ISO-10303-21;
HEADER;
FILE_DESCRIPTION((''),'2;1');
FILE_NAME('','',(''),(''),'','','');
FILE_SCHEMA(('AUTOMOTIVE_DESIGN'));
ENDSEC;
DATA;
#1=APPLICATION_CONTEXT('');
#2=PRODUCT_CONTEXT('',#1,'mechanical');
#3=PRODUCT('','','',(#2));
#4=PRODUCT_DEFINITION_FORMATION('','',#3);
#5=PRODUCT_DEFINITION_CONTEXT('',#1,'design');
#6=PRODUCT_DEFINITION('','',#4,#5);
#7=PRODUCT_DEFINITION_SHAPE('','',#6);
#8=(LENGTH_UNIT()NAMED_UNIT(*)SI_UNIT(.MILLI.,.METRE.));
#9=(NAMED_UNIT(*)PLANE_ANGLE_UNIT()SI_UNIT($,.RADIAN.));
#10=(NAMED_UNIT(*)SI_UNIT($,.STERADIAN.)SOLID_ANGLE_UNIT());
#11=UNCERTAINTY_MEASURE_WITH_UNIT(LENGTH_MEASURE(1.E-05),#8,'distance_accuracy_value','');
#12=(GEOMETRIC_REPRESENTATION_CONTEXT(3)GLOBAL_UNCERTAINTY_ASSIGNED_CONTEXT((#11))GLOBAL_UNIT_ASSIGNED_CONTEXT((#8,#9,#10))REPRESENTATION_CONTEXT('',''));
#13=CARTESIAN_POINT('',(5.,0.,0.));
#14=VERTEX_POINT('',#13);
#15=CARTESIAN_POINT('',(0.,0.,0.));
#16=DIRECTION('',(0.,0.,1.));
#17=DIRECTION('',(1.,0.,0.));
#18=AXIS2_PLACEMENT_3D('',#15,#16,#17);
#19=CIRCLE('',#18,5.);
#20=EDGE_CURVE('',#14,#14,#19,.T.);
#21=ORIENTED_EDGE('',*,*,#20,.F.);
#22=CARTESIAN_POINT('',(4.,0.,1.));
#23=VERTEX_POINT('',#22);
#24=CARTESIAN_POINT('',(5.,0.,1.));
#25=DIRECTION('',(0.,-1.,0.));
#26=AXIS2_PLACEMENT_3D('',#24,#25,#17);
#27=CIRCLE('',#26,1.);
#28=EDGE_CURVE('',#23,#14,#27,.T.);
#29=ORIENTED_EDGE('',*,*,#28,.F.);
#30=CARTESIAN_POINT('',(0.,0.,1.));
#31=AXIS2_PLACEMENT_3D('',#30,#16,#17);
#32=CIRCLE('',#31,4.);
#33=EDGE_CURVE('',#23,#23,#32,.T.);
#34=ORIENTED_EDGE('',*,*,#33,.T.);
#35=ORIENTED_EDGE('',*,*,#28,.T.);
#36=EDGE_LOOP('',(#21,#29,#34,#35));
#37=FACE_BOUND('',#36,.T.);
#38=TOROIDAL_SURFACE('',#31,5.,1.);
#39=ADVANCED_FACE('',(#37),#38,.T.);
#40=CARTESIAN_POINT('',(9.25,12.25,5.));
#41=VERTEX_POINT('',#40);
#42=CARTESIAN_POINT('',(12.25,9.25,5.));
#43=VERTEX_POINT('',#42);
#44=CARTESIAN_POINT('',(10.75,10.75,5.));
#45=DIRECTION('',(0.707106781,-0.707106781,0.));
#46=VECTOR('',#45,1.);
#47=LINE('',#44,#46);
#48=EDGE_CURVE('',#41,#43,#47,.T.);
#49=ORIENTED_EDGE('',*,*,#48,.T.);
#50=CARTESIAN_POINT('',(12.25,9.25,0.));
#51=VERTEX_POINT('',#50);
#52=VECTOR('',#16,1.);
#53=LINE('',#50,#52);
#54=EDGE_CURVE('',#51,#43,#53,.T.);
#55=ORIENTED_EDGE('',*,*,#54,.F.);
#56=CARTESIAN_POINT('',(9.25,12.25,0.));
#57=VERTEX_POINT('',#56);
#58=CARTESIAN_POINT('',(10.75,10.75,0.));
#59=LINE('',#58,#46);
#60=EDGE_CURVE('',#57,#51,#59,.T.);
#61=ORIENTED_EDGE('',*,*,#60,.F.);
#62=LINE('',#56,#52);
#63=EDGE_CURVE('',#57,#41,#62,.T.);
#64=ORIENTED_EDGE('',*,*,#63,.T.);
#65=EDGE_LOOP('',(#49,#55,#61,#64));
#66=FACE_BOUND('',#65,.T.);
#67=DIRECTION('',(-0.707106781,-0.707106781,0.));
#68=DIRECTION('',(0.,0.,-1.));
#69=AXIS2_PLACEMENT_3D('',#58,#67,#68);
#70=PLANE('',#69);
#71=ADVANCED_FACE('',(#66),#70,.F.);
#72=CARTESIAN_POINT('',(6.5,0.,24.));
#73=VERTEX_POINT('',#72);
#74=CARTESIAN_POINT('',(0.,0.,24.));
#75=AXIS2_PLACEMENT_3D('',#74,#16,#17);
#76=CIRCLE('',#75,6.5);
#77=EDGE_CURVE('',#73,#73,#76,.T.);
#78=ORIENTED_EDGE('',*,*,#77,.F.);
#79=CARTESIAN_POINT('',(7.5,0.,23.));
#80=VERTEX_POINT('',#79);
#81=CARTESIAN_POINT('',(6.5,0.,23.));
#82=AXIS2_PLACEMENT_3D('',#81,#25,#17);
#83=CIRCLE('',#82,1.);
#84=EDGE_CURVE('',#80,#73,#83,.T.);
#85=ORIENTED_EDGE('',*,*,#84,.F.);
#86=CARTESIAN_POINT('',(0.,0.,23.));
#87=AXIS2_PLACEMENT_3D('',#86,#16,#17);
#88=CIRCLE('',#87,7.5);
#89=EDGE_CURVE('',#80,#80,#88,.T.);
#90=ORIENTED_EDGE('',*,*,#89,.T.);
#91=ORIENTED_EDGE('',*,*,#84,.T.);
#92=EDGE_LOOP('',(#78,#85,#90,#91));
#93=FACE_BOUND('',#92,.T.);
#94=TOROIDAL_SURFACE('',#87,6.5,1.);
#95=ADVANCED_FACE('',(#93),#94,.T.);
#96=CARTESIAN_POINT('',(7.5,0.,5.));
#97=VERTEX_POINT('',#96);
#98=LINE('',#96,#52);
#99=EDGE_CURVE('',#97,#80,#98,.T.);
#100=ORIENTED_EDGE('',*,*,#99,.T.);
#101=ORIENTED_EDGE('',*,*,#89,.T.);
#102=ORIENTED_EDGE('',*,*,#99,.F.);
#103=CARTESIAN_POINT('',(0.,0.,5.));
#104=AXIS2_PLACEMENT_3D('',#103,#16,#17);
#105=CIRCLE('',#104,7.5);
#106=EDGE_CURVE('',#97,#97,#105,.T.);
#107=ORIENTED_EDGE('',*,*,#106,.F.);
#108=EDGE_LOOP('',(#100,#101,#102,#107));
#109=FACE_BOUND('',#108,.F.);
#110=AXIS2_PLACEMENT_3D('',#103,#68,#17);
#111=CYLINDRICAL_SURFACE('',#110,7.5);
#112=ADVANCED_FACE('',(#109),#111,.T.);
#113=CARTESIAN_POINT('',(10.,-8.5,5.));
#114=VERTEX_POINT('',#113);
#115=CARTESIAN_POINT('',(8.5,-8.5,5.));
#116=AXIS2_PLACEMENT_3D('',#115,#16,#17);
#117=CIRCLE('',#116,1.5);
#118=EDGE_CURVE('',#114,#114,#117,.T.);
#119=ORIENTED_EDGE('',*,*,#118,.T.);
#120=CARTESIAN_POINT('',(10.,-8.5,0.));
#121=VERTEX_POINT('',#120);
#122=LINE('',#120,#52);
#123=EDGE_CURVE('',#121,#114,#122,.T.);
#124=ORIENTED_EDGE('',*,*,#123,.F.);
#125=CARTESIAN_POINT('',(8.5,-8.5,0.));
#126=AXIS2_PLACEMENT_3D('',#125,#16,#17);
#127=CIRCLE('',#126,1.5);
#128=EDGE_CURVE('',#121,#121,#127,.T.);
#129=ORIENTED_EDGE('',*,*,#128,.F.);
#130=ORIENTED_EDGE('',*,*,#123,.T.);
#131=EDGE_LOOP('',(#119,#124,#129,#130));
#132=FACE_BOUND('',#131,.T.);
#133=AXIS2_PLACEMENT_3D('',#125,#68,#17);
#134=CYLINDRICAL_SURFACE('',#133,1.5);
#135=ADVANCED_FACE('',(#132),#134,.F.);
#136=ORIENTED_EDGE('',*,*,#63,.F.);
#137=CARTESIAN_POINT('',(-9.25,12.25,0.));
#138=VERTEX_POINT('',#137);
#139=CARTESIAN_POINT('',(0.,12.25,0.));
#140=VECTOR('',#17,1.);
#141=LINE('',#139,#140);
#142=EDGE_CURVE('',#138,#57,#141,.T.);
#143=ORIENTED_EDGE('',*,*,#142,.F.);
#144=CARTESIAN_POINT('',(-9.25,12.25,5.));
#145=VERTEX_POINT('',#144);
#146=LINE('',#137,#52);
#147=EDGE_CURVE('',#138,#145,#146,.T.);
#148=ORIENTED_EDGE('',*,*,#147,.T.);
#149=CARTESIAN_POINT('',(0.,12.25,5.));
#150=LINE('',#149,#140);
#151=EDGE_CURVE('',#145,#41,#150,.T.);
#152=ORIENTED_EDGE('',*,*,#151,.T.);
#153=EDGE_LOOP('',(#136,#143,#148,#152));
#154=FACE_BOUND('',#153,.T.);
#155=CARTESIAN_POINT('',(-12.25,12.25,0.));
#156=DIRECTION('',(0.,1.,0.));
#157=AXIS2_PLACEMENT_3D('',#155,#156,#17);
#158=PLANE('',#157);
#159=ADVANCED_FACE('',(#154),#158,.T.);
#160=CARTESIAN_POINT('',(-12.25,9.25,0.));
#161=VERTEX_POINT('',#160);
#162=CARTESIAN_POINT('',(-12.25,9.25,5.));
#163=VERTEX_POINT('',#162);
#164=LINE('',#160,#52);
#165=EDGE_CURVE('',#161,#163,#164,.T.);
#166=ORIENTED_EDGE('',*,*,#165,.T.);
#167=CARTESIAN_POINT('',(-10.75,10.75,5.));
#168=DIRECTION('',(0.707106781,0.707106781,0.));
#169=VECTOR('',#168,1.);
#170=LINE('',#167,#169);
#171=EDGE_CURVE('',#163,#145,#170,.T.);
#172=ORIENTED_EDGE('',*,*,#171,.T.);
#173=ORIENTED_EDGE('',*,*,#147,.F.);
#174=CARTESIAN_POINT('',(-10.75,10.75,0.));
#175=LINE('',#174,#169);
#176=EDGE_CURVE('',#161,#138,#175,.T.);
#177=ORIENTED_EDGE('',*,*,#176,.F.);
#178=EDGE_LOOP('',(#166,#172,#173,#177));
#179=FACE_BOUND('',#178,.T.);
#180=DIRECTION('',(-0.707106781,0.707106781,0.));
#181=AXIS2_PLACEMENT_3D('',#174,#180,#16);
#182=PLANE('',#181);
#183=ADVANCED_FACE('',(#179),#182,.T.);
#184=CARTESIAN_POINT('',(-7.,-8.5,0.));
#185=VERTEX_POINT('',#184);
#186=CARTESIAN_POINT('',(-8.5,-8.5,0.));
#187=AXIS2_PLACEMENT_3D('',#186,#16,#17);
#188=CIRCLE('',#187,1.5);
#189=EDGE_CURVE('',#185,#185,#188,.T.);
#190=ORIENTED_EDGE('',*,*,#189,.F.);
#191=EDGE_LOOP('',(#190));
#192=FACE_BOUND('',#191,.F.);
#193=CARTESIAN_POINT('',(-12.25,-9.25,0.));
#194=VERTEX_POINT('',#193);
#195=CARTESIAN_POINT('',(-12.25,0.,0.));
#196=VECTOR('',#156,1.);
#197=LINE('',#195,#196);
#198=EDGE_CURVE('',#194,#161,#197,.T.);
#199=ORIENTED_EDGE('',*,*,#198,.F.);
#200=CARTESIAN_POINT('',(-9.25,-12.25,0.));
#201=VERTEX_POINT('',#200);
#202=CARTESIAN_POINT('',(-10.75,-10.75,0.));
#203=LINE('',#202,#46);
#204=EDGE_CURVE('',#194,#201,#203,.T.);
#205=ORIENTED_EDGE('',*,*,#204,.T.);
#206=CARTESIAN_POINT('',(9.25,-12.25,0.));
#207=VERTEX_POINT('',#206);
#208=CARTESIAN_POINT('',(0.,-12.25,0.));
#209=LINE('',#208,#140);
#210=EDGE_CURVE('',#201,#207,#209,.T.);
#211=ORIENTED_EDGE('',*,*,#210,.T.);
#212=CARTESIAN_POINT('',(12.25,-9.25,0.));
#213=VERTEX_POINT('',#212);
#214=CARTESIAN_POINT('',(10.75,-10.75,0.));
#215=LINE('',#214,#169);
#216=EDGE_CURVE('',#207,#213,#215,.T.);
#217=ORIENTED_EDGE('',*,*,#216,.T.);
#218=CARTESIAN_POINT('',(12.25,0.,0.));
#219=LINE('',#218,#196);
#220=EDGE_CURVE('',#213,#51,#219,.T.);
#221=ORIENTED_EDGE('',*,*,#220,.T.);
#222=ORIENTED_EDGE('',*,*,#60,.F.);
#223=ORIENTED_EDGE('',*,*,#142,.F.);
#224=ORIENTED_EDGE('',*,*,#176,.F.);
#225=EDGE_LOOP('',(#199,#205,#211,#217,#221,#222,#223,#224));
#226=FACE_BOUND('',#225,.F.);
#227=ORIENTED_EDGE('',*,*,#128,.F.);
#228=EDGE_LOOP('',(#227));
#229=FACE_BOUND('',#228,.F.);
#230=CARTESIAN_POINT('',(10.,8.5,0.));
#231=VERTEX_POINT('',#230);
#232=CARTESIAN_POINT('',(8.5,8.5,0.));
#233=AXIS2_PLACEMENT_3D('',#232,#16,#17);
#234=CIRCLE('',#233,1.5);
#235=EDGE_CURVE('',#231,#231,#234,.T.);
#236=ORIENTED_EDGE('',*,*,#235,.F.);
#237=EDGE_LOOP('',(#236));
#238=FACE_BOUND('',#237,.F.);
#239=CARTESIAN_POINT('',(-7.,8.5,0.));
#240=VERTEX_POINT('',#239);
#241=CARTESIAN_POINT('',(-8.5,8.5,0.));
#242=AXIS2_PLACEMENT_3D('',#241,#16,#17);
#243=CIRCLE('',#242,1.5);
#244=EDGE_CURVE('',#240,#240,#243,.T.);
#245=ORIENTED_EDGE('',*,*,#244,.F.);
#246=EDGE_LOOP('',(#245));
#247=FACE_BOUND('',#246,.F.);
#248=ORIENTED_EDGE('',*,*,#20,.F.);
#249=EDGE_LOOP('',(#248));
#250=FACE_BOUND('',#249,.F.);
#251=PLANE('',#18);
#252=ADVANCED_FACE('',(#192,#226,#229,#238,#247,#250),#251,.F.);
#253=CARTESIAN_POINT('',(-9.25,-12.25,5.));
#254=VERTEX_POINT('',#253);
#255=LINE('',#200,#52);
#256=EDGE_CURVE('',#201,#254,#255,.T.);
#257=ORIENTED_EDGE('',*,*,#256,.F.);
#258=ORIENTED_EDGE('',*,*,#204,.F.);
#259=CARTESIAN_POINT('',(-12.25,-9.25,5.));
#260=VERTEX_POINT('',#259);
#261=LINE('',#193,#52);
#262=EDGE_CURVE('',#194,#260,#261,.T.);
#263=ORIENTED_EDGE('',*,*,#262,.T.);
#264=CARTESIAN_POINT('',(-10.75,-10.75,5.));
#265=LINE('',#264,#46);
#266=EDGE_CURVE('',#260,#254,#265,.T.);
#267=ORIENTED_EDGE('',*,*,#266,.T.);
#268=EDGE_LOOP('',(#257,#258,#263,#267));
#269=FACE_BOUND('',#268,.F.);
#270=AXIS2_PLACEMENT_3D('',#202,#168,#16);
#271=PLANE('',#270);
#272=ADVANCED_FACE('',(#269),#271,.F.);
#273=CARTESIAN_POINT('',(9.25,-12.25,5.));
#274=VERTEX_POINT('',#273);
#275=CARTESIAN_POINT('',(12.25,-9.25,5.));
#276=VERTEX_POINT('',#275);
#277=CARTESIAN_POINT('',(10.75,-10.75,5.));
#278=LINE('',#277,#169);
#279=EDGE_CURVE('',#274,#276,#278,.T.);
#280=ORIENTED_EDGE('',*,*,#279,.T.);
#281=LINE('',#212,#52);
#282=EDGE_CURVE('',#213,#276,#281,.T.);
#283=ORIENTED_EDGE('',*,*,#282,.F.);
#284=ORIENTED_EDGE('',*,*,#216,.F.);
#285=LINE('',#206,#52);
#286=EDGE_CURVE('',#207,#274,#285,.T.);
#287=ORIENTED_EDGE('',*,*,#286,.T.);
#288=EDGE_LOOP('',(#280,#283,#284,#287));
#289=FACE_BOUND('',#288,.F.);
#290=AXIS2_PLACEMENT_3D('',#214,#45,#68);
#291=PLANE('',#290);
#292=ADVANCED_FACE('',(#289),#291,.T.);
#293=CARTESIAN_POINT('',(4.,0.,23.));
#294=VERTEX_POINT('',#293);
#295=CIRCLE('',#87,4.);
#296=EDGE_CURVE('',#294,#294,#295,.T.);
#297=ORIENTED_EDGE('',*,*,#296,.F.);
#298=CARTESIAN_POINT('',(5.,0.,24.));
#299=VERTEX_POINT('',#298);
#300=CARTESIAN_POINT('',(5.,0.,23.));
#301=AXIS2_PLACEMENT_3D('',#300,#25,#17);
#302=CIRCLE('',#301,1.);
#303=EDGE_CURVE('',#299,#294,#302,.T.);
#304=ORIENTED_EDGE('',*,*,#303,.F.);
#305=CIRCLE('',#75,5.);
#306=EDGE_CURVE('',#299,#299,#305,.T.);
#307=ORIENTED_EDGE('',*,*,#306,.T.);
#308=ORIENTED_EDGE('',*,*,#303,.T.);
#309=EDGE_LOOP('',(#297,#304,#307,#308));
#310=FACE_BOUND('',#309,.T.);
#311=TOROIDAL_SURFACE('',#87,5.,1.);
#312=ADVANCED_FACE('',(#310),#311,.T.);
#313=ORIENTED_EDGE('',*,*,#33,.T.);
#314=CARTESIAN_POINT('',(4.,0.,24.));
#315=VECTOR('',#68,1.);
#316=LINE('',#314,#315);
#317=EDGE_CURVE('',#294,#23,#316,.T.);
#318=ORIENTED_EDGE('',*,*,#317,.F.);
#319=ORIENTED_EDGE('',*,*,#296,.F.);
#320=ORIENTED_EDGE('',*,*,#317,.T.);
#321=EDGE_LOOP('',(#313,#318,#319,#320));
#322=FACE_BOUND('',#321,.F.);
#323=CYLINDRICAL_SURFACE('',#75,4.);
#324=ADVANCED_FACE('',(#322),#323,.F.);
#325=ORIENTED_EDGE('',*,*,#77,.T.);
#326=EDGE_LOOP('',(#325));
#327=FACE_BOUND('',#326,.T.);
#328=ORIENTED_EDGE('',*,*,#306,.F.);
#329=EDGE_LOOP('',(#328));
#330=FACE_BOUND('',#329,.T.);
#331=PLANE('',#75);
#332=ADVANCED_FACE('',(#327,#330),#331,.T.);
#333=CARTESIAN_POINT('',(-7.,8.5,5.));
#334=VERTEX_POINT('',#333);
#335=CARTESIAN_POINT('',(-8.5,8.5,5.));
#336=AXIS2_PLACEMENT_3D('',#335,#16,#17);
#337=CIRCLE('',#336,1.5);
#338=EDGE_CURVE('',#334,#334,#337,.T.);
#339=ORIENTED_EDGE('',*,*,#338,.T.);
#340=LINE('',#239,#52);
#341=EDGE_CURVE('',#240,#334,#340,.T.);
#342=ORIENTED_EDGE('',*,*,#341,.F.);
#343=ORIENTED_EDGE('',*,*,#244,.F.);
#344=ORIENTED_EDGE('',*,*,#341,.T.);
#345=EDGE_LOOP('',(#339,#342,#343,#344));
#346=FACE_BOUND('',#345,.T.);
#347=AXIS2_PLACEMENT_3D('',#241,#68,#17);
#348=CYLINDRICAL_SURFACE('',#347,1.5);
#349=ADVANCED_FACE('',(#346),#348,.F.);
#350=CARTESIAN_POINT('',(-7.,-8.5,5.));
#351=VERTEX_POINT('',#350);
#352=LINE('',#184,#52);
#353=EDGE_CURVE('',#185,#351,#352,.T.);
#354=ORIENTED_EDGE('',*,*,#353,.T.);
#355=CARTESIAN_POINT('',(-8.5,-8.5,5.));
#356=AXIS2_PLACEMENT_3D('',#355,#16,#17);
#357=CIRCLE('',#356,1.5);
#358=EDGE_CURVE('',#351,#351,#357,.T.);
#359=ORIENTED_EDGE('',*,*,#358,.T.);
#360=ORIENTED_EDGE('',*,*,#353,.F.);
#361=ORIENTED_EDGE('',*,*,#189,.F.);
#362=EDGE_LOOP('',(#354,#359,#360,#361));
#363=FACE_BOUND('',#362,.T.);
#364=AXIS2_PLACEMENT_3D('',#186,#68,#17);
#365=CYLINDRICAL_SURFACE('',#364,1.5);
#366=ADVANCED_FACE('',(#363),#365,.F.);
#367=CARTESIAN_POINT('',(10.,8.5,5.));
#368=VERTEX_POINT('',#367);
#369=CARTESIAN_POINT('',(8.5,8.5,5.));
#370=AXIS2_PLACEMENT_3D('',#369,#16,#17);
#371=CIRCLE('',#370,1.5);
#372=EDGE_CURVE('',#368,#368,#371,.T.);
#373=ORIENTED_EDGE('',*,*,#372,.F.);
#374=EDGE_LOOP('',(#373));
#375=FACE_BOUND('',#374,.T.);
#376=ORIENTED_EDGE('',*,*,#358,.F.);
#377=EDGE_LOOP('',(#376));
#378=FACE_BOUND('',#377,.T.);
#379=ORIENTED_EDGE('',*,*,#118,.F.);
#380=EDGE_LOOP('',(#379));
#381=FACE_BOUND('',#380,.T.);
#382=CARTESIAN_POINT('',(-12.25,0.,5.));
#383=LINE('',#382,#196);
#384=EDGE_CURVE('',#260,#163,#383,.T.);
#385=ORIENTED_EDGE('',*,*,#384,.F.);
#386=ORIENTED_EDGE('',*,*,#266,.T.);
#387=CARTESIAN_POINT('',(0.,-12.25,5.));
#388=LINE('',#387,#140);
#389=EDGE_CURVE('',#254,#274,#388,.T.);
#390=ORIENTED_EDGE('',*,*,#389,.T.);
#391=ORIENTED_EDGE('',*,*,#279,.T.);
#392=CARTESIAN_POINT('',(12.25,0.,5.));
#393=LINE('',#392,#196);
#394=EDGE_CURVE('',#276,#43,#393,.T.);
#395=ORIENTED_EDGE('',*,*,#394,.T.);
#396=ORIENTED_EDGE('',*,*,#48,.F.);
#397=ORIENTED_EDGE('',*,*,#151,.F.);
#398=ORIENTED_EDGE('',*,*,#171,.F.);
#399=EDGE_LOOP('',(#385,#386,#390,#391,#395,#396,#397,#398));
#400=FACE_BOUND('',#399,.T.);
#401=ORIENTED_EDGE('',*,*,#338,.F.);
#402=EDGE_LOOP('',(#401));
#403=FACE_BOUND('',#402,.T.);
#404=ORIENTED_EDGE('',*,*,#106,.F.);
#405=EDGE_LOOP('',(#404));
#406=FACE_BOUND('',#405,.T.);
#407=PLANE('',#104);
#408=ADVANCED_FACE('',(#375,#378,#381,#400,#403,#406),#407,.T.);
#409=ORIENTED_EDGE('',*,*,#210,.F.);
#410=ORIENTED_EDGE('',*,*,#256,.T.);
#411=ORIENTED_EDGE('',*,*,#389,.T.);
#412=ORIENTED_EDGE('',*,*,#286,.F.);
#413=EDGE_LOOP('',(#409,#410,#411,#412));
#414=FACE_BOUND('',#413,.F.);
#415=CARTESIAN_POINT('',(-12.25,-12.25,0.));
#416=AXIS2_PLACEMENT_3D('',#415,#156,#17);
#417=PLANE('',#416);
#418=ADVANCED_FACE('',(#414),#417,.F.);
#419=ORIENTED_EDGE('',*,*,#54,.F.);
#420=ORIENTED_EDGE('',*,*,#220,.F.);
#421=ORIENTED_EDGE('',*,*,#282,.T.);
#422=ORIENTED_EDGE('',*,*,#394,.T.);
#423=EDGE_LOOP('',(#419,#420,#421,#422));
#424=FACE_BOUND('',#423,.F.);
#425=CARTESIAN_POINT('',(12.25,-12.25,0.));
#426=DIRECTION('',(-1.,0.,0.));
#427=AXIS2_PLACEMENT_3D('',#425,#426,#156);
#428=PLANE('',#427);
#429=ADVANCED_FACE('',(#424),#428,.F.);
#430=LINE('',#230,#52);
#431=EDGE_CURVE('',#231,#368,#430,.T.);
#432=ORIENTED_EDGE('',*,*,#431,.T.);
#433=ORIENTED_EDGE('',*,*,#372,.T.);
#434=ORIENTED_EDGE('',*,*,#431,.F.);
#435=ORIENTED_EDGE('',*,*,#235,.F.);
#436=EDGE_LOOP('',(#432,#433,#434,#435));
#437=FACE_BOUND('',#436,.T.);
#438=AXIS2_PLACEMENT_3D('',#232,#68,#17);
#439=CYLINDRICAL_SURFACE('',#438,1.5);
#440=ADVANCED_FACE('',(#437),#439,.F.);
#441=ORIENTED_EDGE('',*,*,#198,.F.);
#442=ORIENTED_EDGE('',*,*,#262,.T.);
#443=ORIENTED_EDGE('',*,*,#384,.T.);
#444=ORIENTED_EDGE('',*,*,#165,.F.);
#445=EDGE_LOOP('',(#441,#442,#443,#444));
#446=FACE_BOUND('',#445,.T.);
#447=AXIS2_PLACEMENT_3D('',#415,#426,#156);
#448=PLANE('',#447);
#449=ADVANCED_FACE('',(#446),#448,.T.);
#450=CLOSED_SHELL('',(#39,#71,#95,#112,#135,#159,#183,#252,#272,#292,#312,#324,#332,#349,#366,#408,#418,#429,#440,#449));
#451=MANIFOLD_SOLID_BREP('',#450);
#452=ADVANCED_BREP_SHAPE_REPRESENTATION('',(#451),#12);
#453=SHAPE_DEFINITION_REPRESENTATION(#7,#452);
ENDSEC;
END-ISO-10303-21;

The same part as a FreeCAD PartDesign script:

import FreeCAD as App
import Part
import Sketcher
from FreeCAD import Vector


def edges_at(feature, points):
    """Names of the edges that pass closest to the given points."""
    edges = feature.Shape.Edges
    near = lambda p: min(range(len(edges)), key=lambda i: edges[i].distToShape(Part.Vertex(*p))[0])
    return sorted({f"Edge{near(p) + 1}" for p in points})


def add_polygon(sketch, points):
    """Adds a closed chain of lines whose ends are joined by coincident constraints."""
    first, n = sketch.GeometryCount, len(points)
    for a, b in zip(points, points[1:] + points[:1]):
        sketch.addGeometry(Part.LineSegment(App.Vector(*a, 0), App.Vector(*b, 0)), False)
    for i in range(n):
        sketch.addConstraint(Sketcher.Constraint("Coincident", first + i, 2, first + (i + 1) % n, 1))

doc = App.newDocument("Part")
body = doc.addObject("PartDesign::Body", "Body")

# Sketch on XY plane
sketch1 = body.newObject("Sketcher::SketchObject", "Sketch")
sketch1.AttachmentSupport = (doc.getObject("XY_Plane"), [""])
sketch1.MapMode = "FlatFace"
add_polygon(sketch1, [(-12.2, 12.2), (-12.2, -12.2), (12.2, -12.2), (12.2, 12.2)])  # lines 0-3
sketch1.addGeometry(Part.Circle(Vector(-8.5, -8.5, 0), Vector(0, 0, 1), 1.5), False)  # 4
sketch1.addGeometry(Part.Circle(Vector(8.5, -8.5, 0), Vector(0, 0, 1), 1.5), False)  # 5
sketch1.addGeometry(Part.Circle(Vector(-8.5, 8.5, 0), Vector(0, 0, 1), 1.5), False)  # 6
sketch1.addGeometry(Part.Circle(Vector(8.5, 8.5, 0), Vector(0, 0, 1), 1.5), False)  # 7
sketch1.addConstraint(Sketcher.Constraint("Vertical", 0))
sketch1.addConstraint(Sketcher.Constraint("Horizontal", 1))
sketch1.addConstraint(Sketcher.Constraint("Vertical", 2))
sketch1.addConstraint(Sketcher.Constraint("Horizontal", 3))
sketch1.addConstraint(Sketcher.Constraint("Equal", 4, 5))
sketch1.addConstraint(Sketcher.Constraint("Equal", 5, 6))
sketch1.addConstraint(Sketcher.Constraint("Equal", 6, 7))
sketch1.addConstraint(Sketcher.Constraint("Symmetric", 5, 3, 6, 3, -1, 1))
sketch1.addConstraint(Sketcher.Constraint("Symmetric", 4, 3, 7, 3, -1, 1))
sketch1.addConstraint(Sketcher.Constraint("Symmetric", 0, 2, 2, 2, -1, 1))
sketch1.addConstraint(Sketcher.Constraint("Symmetric", 4, 3, 5, 3, -2))
sketch1.addConstraint(Sketcher.Constraint("Equal", 3, 0))
sketch1.addConstraint(Sketcher.Constraint("Diameter", 4, 3.0))
sketch1.addConstraint(Sketcher.Constraint("DistanceX", 1, 1, 1, 2, 24.5))
sketch1.addConstraint(Sketcher.Constraint("DistanceX", 4, 3, 5, 3, 17.0))
sketch1.addConstraint(Sketcher.Constraint("DistanceY", 4, 3, 6, 3, 17.0))
pad1 = body.newObject("PartDesign::Pad", "Pad")
pad1.Profile = sketch1
pad1.Length = 5

# Sketch on XY plane
sketch2 = body.newObject("Sketcher::SketchObject", "Sketch001")
sketch2.AttachmentSupport = (doc.getObject("XY_Plane"), [""])
sketch2.MapMode = "FlatFace"
sketch2.AttachmentOffset = App.Placement(Vector(0, 0, 5), App.Rotation())
sketch2.addGeometry(Part.Circle(Vector(0, 0, 0), Vector(0, 0, 1), 8), False)
sketch2.addConstraint(Sketcher.Constraint("Coincident", 0, 3, -1, 1))
sketch2.addConstraint(Sketcher.Constraint("Diameter", 0, 15.0))
pad2 = body.newObject("PartDesign::Pad", "Pad001")
pad2.Profile = sketch2
pad2.Length = 19

# Sketch on XY plane
sketch3 = body.newObject("Sketcher::SketchObject", "Sketch002")
sketch3.AttachmentSupport = (doc.getObject("XY_Plane"), [""])
sketch3.MapMode = "FlatFace"
sketch3.AttachmentOffset = App.Placement(Vector(0, 0, 24), App.Rotation())
sketch3.addGeometry(Part.Circle(Vector(0, 0, 0), Vector(0, 0, 1), 4), False)
sketch3.addConstraint(Sketcher.Constraint("Coincident", 0, 3, -1, 1))
sketch3.addConstraint(Sketcher.Constraint("Diameter", 0, 8.0))
pocket1 = body.newObject("PartDesign::Pocket", "Pocket")
pocket1.Profile = sketch3
pocket1.Type = "ThroughAll"
doc.recompute()

chamfer = body.newObject("PartDesign::Chamfer", "Chamfer")
chamfer.Base = (pocket1, edges_at(pocket1, [(12.25, -12.25, 2.5), (12.25, 12.25, 2.5), (-12.25, 12.25, 2.5)]))
chamfer.Size = 3
doc.recompute()

chamfer2 = body.newObject("PartDesign::Chamfer", "Chamfer001")
chamfer2.Base = (chamfer, edges_at(chamfer, [(-12.25, -12.25, 2.5)]))
chamfer2.Size = 3
doc.recompute()

fillet = body.newObject("PartDesign::Fillet", "Fillet")
fillet.Base = (chamfer2, edges_at(chamfer2, [(-7.5, 0, 24)]))
fillet.Radius = 1
doc.recompute()

fillet2 = body.newObject("PartDesign::Fillet", "Fillet001")
fillet2.Base = (fillet, edges_at(fillet, [(-4, 0, 24)]))
fillet2.Radius = 1
doc.recompute()

fillet3 = body.newObject("PartDesign::Fillet", "Fillet002")
fillet3.Base = (fillet2, edges_at(fillet2, [(-4, 0, 0)]))
fillet3.Radius = 1

doc.recompute()
